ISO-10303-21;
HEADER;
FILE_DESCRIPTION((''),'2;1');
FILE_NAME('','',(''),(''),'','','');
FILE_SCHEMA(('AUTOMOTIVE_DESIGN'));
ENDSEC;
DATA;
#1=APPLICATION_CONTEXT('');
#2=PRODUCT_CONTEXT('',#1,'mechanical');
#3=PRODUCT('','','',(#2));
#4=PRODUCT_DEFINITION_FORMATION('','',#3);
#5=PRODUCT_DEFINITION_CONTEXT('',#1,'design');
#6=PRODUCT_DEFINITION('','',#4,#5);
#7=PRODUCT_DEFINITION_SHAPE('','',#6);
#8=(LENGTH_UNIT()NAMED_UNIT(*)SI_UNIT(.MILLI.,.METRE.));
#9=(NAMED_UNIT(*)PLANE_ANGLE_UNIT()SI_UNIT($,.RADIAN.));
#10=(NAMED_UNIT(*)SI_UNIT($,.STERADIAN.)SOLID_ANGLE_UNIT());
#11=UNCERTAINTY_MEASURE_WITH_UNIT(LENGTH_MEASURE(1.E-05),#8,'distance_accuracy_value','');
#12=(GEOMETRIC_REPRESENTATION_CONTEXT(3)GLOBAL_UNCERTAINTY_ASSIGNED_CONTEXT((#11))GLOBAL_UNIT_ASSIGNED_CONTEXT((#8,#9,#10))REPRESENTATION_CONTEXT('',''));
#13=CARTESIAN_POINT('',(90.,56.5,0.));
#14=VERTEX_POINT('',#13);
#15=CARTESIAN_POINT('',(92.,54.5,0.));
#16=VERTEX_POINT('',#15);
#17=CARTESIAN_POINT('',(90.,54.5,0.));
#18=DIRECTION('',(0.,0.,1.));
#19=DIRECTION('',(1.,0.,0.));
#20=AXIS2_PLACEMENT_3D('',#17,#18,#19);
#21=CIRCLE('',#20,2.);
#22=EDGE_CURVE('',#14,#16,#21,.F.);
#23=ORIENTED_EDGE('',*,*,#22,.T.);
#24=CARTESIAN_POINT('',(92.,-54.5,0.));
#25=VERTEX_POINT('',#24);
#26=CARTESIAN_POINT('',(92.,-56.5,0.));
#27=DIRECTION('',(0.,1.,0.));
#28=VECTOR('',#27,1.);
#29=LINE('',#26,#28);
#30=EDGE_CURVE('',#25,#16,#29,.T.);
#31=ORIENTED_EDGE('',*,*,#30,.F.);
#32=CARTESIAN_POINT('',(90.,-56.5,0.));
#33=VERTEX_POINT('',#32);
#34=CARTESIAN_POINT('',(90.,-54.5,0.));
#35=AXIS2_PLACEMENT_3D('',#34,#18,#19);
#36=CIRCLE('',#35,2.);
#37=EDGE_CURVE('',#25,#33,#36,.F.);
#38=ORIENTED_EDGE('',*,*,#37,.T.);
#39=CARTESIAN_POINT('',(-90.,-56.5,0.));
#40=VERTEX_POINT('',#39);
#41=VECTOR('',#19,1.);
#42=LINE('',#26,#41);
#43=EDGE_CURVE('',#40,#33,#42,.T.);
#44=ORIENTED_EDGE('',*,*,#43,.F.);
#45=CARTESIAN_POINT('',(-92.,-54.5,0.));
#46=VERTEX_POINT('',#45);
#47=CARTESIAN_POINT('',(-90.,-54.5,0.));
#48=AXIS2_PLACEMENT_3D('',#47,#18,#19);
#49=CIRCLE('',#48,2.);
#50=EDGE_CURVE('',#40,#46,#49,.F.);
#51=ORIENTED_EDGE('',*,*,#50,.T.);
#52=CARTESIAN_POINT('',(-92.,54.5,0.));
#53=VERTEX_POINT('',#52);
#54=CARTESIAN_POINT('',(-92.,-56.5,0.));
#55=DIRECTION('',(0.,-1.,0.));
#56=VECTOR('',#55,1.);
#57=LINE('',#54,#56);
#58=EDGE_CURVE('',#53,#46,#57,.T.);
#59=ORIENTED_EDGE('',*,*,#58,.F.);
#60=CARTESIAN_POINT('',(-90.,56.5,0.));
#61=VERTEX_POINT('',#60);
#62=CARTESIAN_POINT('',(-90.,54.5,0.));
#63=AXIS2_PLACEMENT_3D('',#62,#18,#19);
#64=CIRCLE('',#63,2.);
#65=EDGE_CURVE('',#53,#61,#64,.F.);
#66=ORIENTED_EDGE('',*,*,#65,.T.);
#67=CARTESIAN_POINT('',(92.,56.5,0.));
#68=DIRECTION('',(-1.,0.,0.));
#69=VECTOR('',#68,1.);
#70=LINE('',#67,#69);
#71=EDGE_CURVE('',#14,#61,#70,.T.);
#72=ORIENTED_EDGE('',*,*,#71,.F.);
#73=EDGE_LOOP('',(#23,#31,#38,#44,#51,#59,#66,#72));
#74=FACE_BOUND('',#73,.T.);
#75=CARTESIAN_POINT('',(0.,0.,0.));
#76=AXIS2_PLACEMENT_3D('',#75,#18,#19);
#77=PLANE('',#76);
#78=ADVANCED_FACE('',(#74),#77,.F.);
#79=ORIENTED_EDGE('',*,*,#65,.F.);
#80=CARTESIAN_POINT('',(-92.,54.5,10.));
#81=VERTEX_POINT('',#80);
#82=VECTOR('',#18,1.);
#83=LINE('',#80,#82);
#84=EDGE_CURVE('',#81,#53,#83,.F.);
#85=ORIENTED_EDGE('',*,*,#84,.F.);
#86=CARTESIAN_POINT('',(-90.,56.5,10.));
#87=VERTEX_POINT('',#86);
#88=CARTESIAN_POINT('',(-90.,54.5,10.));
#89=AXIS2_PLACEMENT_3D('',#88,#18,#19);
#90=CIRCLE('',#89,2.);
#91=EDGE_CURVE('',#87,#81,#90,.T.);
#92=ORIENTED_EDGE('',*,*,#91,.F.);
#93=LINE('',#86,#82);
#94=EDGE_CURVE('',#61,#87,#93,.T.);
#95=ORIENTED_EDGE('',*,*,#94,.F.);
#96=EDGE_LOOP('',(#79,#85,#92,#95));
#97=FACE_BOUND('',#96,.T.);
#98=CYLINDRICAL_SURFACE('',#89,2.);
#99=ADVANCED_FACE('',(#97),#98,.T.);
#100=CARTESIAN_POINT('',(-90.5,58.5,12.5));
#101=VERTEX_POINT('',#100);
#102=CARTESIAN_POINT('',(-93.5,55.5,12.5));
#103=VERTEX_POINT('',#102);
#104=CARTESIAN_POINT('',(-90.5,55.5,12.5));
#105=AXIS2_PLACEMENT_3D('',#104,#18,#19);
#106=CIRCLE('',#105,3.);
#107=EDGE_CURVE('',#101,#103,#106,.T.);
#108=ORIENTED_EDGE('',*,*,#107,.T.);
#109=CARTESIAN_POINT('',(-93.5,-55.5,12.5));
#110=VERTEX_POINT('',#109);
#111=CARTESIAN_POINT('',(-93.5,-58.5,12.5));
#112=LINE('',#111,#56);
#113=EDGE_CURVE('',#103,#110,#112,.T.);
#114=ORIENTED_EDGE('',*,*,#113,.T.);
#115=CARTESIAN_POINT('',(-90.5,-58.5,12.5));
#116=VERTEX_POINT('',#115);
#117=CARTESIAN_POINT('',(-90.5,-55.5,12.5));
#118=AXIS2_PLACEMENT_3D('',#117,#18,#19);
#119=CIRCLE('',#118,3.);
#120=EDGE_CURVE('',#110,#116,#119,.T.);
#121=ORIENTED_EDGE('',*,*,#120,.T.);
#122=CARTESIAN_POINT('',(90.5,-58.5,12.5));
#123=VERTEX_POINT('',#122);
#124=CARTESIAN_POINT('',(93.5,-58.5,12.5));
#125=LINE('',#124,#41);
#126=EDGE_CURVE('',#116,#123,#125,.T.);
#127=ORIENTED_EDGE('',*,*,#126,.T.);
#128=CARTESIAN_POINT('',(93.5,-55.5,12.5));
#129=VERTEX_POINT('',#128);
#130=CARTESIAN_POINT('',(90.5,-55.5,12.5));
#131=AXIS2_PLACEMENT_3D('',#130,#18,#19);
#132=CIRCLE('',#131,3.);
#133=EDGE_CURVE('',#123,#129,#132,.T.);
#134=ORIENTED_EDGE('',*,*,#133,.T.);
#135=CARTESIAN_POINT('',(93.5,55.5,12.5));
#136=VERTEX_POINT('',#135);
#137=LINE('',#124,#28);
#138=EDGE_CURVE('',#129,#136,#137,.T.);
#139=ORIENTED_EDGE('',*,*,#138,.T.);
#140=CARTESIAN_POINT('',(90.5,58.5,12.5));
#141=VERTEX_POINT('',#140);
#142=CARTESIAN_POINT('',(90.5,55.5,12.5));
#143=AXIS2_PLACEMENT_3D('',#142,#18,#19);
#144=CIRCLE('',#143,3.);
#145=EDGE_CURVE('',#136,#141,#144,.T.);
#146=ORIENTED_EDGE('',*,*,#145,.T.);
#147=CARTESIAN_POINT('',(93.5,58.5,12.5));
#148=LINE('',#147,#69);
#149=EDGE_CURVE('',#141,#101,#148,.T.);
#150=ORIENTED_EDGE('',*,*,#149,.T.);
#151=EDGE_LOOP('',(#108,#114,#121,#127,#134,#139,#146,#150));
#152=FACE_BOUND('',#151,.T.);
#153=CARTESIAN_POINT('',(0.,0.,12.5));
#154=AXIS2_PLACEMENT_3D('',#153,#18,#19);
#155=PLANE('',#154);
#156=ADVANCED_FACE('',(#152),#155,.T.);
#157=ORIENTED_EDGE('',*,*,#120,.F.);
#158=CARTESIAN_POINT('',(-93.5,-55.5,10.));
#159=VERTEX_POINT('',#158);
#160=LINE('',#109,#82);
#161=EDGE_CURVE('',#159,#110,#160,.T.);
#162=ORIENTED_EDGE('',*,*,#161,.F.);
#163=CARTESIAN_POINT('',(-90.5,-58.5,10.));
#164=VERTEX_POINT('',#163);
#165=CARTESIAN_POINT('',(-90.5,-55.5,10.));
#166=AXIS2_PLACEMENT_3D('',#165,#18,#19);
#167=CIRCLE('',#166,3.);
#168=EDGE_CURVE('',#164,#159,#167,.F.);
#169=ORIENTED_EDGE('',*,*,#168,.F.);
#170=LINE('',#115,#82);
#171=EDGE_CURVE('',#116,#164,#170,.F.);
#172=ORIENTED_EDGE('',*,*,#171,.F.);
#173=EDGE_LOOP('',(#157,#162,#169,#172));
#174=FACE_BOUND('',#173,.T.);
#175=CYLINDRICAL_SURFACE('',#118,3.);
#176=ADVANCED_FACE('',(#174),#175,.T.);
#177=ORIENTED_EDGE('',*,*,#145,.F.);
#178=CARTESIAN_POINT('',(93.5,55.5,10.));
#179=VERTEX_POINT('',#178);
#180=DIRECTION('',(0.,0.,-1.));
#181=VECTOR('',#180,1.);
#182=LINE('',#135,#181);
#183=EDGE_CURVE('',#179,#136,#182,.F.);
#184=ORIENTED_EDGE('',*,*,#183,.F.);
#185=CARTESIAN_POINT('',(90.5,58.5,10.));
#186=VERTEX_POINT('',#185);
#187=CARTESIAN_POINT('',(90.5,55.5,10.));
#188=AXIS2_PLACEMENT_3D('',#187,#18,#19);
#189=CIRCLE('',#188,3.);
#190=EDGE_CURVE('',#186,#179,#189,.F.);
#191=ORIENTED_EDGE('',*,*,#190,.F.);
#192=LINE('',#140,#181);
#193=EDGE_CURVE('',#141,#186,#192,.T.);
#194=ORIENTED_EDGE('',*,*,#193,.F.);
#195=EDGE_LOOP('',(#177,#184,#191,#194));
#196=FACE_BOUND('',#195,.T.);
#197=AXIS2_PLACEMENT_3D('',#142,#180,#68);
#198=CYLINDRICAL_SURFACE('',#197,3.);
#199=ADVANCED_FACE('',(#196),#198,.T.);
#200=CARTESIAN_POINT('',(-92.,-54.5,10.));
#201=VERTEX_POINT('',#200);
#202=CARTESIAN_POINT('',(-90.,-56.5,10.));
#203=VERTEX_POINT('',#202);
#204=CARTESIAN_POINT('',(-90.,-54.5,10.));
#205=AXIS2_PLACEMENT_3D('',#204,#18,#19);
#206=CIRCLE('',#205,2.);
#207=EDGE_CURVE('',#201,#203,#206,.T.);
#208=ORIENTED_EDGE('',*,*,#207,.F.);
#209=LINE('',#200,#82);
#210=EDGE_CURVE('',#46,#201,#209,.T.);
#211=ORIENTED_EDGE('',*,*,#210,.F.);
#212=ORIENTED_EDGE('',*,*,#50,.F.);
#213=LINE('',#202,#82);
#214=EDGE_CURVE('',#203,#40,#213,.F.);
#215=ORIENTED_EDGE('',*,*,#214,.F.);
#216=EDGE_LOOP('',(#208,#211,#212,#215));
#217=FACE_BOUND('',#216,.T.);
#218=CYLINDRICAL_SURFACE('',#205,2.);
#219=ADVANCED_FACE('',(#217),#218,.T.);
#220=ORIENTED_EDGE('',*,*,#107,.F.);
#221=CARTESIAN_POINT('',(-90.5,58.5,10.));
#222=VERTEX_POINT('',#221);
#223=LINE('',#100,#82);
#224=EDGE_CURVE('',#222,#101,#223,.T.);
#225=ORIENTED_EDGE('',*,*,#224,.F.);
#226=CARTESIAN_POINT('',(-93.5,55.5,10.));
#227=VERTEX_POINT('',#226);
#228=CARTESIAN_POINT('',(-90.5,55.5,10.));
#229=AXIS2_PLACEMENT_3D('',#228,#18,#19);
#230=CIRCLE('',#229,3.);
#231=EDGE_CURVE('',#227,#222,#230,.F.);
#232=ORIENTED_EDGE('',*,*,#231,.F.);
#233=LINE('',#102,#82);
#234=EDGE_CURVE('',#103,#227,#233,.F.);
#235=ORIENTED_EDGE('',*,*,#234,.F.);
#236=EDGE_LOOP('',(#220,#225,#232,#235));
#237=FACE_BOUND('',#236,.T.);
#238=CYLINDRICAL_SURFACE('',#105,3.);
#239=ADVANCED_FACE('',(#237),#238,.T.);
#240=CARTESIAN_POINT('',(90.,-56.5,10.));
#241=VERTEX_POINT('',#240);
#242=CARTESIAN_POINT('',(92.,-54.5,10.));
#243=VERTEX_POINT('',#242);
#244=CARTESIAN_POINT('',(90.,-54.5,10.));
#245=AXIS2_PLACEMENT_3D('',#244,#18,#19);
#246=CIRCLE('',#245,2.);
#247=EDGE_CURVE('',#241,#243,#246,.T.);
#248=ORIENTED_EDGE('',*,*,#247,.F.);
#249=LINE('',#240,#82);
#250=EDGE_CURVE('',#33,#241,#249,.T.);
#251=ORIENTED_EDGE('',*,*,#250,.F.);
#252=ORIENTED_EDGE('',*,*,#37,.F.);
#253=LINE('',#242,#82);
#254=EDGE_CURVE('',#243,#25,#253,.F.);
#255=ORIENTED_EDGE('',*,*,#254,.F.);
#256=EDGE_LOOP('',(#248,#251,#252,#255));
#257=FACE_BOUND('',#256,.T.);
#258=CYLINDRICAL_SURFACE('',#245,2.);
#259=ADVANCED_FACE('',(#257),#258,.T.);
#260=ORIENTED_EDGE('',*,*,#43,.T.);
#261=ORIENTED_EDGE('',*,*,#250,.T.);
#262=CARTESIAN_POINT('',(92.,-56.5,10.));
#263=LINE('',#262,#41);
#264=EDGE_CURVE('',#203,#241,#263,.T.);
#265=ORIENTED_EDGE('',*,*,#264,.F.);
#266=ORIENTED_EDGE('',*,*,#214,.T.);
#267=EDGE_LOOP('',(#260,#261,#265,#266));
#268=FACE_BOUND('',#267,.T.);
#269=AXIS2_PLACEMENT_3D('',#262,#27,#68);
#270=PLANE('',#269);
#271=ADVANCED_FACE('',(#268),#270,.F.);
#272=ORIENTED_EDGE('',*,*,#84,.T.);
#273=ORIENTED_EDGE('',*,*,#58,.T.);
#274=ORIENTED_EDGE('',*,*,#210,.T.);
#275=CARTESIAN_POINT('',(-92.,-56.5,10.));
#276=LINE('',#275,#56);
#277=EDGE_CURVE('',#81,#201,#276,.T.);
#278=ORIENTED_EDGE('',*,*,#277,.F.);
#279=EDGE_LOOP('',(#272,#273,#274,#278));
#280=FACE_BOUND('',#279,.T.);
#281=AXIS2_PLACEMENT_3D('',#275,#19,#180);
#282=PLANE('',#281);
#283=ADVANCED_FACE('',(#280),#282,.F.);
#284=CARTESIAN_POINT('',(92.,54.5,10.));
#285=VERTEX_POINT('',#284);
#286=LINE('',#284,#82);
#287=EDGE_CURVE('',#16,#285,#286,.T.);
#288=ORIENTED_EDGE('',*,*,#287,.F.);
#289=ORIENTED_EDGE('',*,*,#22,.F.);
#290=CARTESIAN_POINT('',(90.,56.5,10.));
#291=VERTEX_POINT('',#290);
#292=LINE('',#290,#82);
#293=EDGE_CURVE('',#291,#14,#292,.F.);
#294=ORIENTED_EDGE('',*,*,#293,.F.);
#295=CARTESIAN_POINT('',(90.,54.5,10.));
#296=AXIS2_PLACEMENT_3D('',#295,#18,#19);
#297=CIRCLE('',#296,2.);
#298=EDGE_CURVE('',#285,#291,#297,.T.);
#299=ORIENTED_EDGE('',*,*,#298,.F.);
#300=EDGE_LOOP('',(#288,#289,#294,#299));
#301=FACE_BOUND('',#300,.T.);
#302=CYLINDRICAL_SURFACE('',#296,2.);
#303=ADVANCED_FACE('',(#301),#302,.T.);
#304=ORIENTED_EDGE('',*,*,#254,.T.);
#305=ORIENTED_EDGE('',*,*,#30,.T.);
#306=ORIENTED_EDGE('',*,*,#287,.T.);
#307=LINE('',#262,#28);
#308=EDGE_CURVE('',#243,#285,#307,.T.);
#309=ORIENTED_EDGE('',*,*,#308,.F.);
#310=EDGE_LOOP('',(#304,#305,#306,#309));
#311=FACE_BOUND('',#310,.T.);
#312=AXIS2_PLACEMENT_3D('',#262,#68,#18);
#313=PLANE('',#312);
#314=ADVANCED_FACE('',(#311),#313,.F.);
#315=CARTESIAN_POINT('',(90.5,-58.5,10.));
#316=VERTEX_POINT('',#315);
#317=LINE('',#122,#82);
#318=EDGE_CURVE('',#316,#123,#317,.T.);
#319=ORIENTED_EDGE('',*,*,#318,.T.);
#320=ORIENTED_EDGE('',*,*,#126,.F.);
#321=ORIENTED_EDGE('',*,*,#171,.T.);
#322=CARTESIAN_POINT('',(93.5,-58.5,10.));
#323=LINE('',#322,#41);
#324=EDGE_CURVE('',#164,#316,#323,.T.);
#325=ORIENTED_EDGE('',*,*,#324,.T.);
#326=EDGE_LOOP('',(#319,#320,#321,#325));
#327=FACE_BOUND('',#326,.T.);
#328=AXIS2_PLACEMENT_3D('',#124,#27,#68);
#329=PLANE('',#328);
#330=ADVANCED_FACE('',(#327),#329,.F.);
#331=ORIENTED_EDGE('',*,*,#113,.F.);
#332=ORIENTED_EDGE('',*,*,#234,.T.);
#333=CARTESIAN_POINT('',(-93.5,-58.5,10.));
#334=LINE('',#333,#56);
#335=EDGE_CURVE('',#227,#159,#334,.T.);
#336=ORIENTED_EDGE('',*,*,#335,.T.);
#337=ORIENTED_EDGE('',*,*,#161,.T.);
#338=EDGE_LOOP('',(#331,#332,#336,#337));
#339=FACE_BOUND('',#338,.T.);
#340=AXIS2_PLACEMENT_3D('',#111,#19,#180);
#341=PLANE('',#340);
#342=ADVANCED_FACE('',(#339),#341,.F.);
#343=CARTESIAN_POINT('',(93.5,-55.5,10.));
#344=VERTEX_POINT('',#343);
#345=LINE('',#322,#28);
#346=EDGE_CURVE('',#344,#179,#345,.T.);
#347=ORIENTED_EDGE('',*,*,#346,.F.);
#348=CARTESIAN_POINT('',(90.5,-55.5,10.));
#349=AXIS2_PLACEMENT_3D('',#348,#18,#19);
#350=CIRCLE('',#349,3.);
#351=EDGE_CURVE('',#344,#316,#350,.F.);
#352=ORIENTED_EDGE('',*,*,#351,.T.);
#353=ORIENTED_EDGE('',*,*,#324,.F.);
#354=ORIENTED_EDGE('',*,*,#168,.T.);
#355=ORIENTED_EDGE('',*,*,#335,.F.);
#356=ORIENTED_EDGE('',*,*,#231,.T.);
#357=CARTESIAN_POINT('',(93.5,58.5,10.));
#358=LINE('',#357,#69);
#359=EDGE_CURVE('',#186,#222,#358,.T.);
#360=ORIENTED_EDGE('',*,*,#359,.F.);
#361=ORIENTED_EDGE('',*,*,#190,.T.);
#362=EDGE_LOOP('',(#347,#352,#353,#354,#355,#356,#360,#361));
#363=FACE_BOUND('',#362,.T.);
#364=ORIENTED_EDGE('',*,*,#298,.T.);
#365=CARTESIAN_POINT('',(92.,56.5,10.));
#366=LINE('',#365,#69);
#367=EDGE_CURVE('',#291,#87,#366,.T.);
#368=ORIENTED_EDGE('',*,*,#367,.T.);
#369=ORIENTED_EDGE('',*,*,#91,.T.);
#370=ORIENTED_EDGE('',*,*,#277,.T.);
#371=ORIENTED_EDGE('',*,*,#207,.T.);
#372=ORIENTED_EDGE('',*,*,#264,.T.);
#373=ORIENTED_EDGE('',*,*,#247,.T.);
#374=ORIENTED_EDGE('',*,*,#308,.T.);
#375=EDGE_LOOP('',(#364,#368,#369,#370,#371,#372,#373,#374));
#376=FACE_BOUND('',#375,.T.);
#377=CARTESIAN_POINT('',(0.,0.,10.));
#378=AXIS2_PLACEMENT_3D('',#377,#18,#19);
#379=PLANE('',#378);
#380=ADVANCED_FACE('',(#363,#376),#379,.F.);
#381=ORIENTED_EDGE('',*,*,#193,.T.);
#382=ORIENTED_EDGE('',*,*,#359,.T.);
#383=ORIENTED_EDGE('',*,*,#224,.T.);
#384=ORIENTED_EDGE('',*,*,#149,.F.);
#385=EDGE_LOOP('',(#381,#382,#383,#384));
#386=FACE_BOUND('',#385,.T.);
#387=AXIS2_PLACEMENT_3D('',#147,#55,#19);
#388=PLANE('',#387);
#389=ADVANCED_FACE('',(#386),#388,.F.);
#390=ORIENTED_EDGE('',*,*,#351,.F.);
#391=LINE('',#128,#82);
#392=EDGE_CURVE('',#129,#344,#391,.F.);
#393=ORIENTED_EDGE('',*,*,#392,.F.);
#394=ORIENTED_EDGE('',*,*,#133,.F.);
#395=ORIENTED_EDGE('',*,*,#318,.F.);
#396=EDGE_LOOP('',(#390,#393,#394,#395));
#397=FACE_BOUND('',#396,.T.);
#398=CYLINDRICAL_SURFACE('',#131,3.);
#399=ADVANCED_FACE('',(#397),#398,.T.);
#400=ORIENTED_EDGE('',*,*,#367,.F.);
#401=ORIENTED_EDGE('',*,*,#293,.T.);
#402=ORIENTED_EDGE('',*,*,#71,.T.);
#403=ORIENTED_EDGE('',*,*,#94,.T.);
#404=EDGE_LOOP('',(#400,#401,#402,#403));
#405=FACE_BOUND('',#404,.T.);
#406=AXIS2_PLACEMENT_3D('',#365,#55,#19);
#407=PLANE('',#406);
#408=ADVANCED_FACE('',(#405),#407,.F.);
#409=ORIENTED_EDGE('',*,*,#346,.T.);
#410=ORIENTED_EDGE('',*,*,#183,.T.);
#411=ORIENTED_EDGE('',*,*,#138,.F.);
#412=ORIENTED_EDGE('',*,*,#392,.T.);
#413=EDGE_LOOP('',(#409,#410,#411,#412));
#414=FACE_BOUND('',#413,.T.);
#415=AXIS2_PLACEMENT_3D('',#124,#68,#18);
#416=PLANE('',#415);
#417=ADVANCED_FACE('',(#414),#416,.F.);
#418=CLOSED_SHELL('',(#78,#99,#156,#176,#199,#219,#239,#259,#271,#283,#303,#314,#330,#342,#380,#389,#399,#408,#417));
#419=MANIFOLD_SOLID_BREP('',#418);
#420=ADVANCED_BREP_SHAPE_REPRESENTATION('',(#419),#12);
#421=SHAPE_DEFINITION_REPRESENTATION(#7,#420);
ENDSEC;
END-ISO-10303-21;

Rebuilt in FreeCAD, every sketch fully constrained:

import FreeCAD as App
import Part
import Sketcher
Q = App.Units.Quantity


def edges_at(feature, points):
    """Names of the edges that pass closest to the given points."""
    edges = feature.Shape.Edges
    near = lambda p: min(range(len(edges)), key=lambda i: edges[i].distToShape(Part.Vertex(*p))[0])
    return sorted({f"Edge{near(p) + 1}" for p in points})

doc = App.newDocument("Part")
params = doc.addObject("Spreadsheet::Sheet", "Params")
for row, (alias, value) in enumerate([
    ("sketch1_width", "184 mm"),
    ("sketch1_height", "113 mm"),
    ("pad1_length", "10 mm"),
    ("fillet_radius", "2 mm"),
    ("fillet2_radius", "2 mm"),
    ("fillet3_radius", "2 mm"),
    ("fillet4_radius", "2 mm"),
    ("sketch2_width", "187 mm"),
    ("sketch2_height", "117 mm"),
    ("pad2_length", "2.5 mm"),
    ("fillet5_radius", "3 mm"),
    ("fillet6_radius", "3 mm"),
    ("fillet7_radius", "3 mm"),
    ("fillet8_radius", "3 mm"),
], start=1):
    params.set(f"A{row}", alias)
    params.set(f"B{row}", "=" + value)
    params.setAlias(f"B{row}", alias)

body = doc.addObject("PartDesign::Body", "Body")

# Sketch on XY plane
sketch1 = body.newObject("Sketcher::SketchObject", "Sketch")
sketch1.AttachmentSupport = (doc.getObject("XY_Plane"), [""])
sketch1.MapMode = "FlatFace"
sketch1.addGeometry(Part.LineSegment(App.Vector(-92, 56, 0), App.Vector(-92, -56, 0)), False)
sketch1.addGeometry(Part.LineSegment(App.Vector(-92, -56, 0), App.Vector(92, -56, 0)), False)
sketch1.addGeometry(Part.LineSegment(App.Vector(92, -56, 0), App.Vector(92, 56, 0)), False)
sketch1.addGeometry(Part.LineSegment(App.Vector(92, 56, 0), App.Vector(-92, 56, 0)), False)
sketch1.addConstraint(Sketcher.Constraint("Coincident", 0, 2, 1, 1))
sketch1.addConstraint(Sketcher.Constraint("Coincident", 1, 2, 2, 1))
sketch1.addConstraint(Sketcher.Constraint("Coincident", 2, 2, 3, 1))
sketch1.addConstraint(Sketcher.Constraint("Coincident", 3, 2, 0, 1))
sketch1.addConstraint(Sketcher.Constraint("Vertical", 0))
sketch1.addConstraint(Sketcher.Constraint("Horizontal", 1))
sketch1.addConstraint(Sketcher.Constraint("Vertical", 2))
sketch1.addConstraint(Sketcher.Constraint("Horizontal", 3))
sketch1.addConstraint(Sketcher.Constraint("Symmetric", 0, 2, 2, 2, -1, 1))
sketch1.addConstraint(Sketcher.Constraint("DistanceX", 1, 1, 1, 2, Q("184 mm")))
sketch1.addConstraint(Sketcher.Constraint("DistanceY", 0, 2, 0, 1, Q("113 mm")))
sketch1.setExpression("Constraints[9]", "Params.sketch1_width")
sketch1.setExpression("Constraints[10]", "Params.sketch1_height")
pad1 = body.newObject("PartDesign::Pad", "Pad")
pad1.Profile = sketch1
pad1.setExpression("Length", "Params.pad1_length")
doc.recompute()

fillet = body.newObject("PartDesign::Fillet", "Fillet")
fillet.Base = (pad1, edges_at(pad1, [(-92, 56.5, 5)]))
fillet.setExpression("Radius", "Params.fillet_radius")
doc.recompute()

fillet2 = body.newObject("PartDesign::Fillet", "Fillet001")
fillet2.Base = (fillet, edges_at(fillet, [(-92, -56.5, 5)]))
fillet2.setExpression("Radius", "Params.fillet2_radius")
doc.recompute()

fillet3 = body.newObject("PartDesign::Fillet", "Fillet002")
fillet3.Base = (fillet2, edges_at(fillet2, [(92, -56.5, 5)]))
fillet3.setExpression("Radius", "Params.fillet3_radius")
doc.recompute()

fillet4 = body.newObject("PartDesign::Fillet", "Fillet003")
fillet4.Base = (fillet3, edges_at(fillet3, [(92, 56.5, 5)]))
fillet4.setExpression("Radius", "Params.fillet4_radius")

# Sketch on XY plane
sketch2 = body.newObject("Sketcher::SketchObject", "Sketch001")
sketch2.AttachmentSupport = (doc.getObject("XY_Plane"), [""])
sketch2.MapMode = "FlatFace"
sketch2.AttachmentOffset = App.Placement(App.Vector(0, 0, 10), App.Rotation())
sketch2.addGeometry(Part.LineSegment(App.Vector(-94, 58, 0), App.Vector(-94, -58, 0)), False)
sketch2.addGeometry(Part.LineSegment(App.Vector(-94, -58, 0), App.Vector(94, -58, 0)), False)
sketch2.addGeometry(Part.LineSegment(App.Vector(94, -58, 0), App.Vector(94, 58, 0)), False)
sketch2.addGeometry(Part.LineSegment(App.Vector(94, 58, 0), App.Vector(-94, 58, 0)), False)
sketch2.addConstraint(Sketcher.Constraint("Coincident", 0, 2, 1, 1))
sketch2.addConstraint(Sketcher.Constraint("Coincident", 1, 2, 2, 1))
sketch2.addConstraint(Sketcher.Constraint("Coincident", 2, 2, 3, 1))
sketch2.addConstraint(Sketcher.Constraint("Coincident", 3, 2, 0, 1))
sketch2.addConstraint(Sketcher.Constraint("Vertical", 0))
sketch2.addConstraint(Sketcher.Constraint("Horizontal", 1))
sketch2.addConstraint(Sketcher.Constraint("Vertical", 2))
sketch2.addConstraint(Sketcher.Constraint("Horizontal", 3))
sketch2.addConstraint(Sketcher.Constraint("Symmetric", 0, 2, 2, 2, -1, 1))
sketch2.addConstraint(Sketcher.Constraint("DistanceX", 1, 1, 1, 2, Q("187 mm")))
sketch2.addConstraint(Sketcher.Constraint("DistanceY", 0, 2, 0, 1, Q("117 mm")))
sketch2.setExpression("Constraints[9]", "Params.sketch2_width")
sketch2.setExpression("Constraints[10]", "Params.sketch2_height")
pad2 = body.newObject("PartDesign::Pad", "Pad001")
pad2.Profile = sketch2
pad2.setExpression("Length", "Params.pad2_length")
doc.recompute()

fillet5 = body.newObject("PartDesign::Fillet", "Fillet004")
fillet5.Base = (pad2, edges_at(pad2, [(-93.5, 58.5, 11.25)]))
fillet5.setExpression("Radius", "Params.fillet5_radius")
doc.recompute()

fillet6 = body.newObject("PartDesign::Fillet", "Fillet005")
fillet6.Base = (fillet5, edges_at(fillet5, [(-93.5, -58.5, 11.25)]))
fillet6.setExpression("Radius", "Params.fillet6_radius")
doc.recompute()

fillet7 = body.newObject("PartDesign::Fillet", "Fillet006")
fillet7.Base = (fillet6, edges_at(fillet6, [(93.5, -58.5, 11.25)]))
fillet7.setExpression("Radius", "Params.fillet7_radius")
doc.recompute()

fillet8 = body.newObject("PartDesign::Fillet", "Fillet007")
fillet8.Base = (fillet7, edges_at(fillet7, [(93.5, 58.5, 11.25)]))
fillet8.setExpression("Radius", "Params.fillet8_radius")

doc.recompute()
